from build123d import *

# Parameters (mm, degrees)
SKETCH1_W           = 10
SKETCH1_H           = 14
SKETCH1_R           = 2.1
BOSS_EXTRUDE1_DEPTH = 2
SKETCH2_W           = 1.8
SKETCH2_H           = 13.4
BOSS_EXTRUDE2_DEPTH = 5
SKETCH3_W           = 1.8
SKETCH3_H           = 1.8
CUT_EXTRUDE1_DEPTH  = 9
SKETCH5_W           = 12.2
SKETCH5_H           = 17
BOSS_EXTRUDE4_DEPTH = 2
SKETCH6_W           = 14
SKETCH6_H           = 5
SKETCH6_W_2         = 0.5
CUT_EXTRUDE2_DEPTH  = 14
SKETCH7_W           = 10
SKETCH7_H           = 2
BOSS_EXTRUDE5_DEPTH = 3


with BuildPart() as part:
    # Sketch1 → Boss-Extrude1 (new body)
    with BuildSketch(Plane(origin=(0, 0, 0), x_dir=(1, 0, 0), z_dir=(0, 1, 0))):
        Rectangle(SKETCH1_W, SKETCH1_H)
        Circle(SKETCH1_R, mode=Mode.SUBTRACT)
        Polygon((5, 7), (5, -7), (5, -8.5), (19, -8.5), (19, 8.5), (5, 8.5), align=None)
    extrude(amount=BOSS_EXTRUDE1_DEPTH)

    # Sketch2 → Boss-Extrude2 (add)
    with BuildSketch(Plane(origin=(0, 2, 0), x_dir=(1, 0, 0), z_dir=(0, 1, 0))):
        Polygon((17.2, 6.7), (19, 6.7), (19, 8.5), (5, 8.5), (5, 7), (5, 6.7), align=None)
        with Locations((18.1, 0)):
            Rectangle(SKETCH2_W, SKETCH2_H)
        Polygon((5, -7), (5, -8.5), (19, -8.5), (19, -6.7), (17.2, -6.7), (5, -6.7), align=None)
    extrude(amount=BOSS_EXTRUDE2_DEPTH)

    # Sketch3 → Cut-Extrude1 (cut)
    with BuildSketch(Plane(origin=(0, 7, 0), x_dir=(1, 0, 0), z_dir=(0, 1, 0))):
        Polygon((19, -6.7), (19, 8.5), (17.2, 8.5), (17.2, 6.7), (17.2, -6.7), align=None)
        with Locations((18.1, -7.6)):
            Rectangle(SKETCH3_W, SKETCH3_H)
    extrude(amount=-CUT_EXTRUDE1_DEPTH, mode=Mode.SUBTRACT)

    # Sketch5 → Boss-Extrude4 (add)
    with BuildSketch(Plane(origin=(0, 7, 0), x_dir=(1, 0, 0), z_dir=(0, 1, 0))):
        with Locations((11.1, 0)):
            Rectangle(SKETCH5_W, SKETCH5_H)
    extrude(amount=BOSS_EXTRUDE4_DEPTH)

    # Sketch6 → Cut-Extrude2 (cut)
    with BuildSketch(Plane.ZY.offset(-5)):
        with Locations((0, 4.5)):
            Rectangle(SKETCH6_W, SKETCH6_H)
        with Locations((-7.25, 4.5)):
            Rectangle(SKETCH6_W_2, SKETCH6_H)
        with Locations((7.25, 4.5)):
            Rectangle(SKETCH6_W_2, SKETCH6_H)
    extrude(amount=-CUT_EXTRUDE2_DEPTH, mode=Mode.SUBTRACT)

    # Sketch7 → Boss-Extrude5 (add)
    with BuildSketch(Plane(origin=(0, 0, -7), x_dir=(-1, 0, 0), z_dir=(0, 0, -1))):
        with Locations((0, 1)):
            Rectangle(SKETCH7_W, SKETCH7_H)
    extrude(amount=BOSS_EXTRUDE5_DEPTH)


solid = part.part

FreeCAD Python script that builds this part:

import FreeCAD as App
import Part
import Sketcher

V = App.Vector


def add_polygon(sketch, points):
    """Adds a closed chain of lines whose ends are joined by coincident constraints."""
    first, n = sketch.GeometryCount, len(points)
    for a, b in zip(points, points[1:] + points[:1]):
        sketch.addGeometry(Part.LineSegment(App.Vector(*a, 0), App.Vector(*b, 0)), False)
    for i in range(n):
        sketch.addConstraint(Sketcher.Constraint("Coincident", first + i, 2, first + (i + 1) % n, 1))

doc = App.newDocument("Part")
body = doc.addObject("PartDesign::Body", "Body")

# Sketch on XZ plane
sketch1 = doc.addObject("Sketcher::SketchObject", "Sketch")
body.addObject(sketch1)
sketch1.AttachmentSupport = (doc.XZ_Plane, [""])
sketch1.MapMode = "FlatFace"
add_polygon(sketch1, [(-5, -7), (-5, 7), (5, 7), (5, 8.5), (19, 8.5), (19, -8.5), (5, -8.5), (5, -7)])  # lines 0-7
sketch1.addGeometry(Part.Circle(V(0, 0, 0), V(0, 0, 1), 2.1), False)  # 8
sketch1.addConstraint([
    Sketcher.Constraint("Vertical", 0),
    Sketcher.Constraint("Horizontal", 1),
    Sketcher.Constraint("Vertical", 2),
    Sketcher.Constraint("Horizontal", 3),
    Sketcher.Constraint("Vertical", 4),
    Sketcher.Constraint("Horizontal", 5),
    Sketcher.Constraint("Vertical", 6),
    Sketcher.Constraint("Horizontal", 7),
    Sketcher.Constraint("Coincident", 8, 3, -1, 1),
    Sketcher.Constraint("Symmetric", 0, 2, 6, 2, -1, 1),
    Sketcher.Constraint("Symmetric", 2, 2, 5, 2, -1),
    Sketcher.Constraint("Equal", 5, 0),
    Sketcher.Constraint("Diameter", 8, 4.2),
    Sketcher.Constraint("DistanceX", 1, 1, 1, 2, 10.0),
    Sketcher.Constraint("DistanceX", 3, 1, 3, 2, 14.0),
    Sketcher.Constraint("DistanceY", 4, 2, 4, 1, 17.0),
])
pad1 = doc.addObject("PartDesign::Pad", "Pad")
body.addObject(pad1)
pad1.Profile = sketch1
pad1.Length = 2
pad1.Reversed = True

# Sketch on XZ plane
sketch2 = doc.addObject("Sketcher::SketchObject", "Sketch001")
body.addObject(sketch2)
sketch2.AttachmentSupport = (doc.XZ_Plane, [""])
sketch2.MapMode = "FlatFace"
sketch2.AttachmentOffset = App.Placement(V(0, 0, -2), App.Rotation())
add_polygon(sketch2, [(19, -8.5), (5, -8.5), (5, -6.7), (17.2, -6.7), (17.2, 6.7), (5, 6.7), (5, 8.5), (19, 8.5)])  # lines 0-7
sketch2.addConstraint([
    Sketcher.Constraint("Horizontal", 0),
    Sketcher.Constraint("Vertical", 1),
    Sketcher.Constraint("Horizontal", 2),
    Sketcher.Constraint("Vertical", 3),
    Sketcher.Constraint("Horizontal", 4),
    Sketcher.Constraint("Vertical", 5),
    Sketcher.Constraint("Horizontal", 6),
    Sketcher.Constraint("Vertical", 7),
    Sketcher.Constraint("Symmetric", 1, 2, 4, 2, -1),
    Sketcher.Constraint("Equal", 1, 5),
    Sketcher.Constraint("DistanceX", 0, 2, 0, 1, 14.0),
    Sketcher.Constraint("DistanceY", 7, 2, 7, 1, 17.0),
    Sketcher.Constraint("DistanceX", 2, 1, 2, 2, 12.2),
    Sketcher.Constraint("DistanceY", 1, 1, 1, 2, 1.8),
    Sketcher.Constraint("DistanceX", -1, 1, 0, 2, 5.0),
])
pad2 = doc.addObject("PartDesign::Pad", "Pad001")
body.addObject(pad2)
pad2.Profile = sketch2
pad2.Length = 5
pad2.Reversed = True

# Sketch on XZ plane
sketch3 = doc.addObject("Sketcher::SketchObject", "Sketch002")
body.addObject(sketch3)
sketch3.AttachmentSupport = (doc.XZ_Plane, [""])
sketch3.MapMode = "FlatFace"
sketch3.AttachmentOffset = App.Placement(V(0, 0, -7), App.Rotation())
add_polygon(sketch3, [(19, -8.5), (17.2, -8.5), (17.2, 8.5), (19, 8.5)])  # lines 0-3
sketch3.addConstraint([
    Sketcher.Constraint("Horizontal", 0),
    Sketcher.Constraint("Vertical", 1),
    Sketcher.Constraint("Horizontal", 2),
    Sketcher.Constraint("Vertical", 3),
    Sketcher.Constraint("DistanceY", 1, 1, 1, 2, 17.0),
    Sketcher.Constraint("DistanceX", 0, 2, 0, 1, 1.8),
    Sketcher.Constraint("DistanceX", -1, 1, 2, 2, 19.0),
    Sketcher.Constraint("DistanceY", 0, 2, -1, 1, 8.5),
])
pocket1 = doc.addObject("PartDesign::Pocket", "Pocket")
body.addObject(pocket1)
pocket1.Profile = sketch3
pocket1.Length = 9
pocket1.Reversed = True

# Sketch on XZ plane
sketch4 = doc.addObject("Sketcher::SketchObject", "Sketch003")
body.addObject(sketch4)
sketch4.AttachmentSupport = (doc.XZ_Plane, [""])
sketch4.MapMode = "FlatFace"
sketch4.AttachmentOffset = App.Placement(V(0, 0, -7), App.Rotation())
add_polygon(sketch4, [(5, -8), (5, 8), (17, 8), (17, -8)])  # lines 0-3
sketch4.addConstraint([
    Sketcher.Constraint("Vertical", 0),
    Sketcher.Constraint("Horizontal", 1),
    Sketcher.Constraint("Vertical", 2),
    Sketcher.Constraint("Horizontal", 3),
    Sketcher.Constraint("DistanceY", 0, 1, 0, 2, 17.0),
    Sketcher.Constraint("DistanceX", 1, 1, 1, 2, 12.2),
    Sketcher.Constraint("DistanceX", -1, 1, 0, 2, 5.0),
    Sketcher.Constraint("DistanceY", -1, 1, 0, 2, 8.5),
])
pad3 = doc.addObject("PartDesign::Pad", "Pad002")
body.addObject(pad3)
pad3.Profile = sketch4
pad3.Length = 2
pad3.Reversed = True

# Sketch on YZ plane
sketch5 = doc.addObject("Sketcher::SketchObject", "Sketch004")
body.addObject(sketch5)
sketch5.AttachmentSupport = (doc.YZ_Plane, [""])
sketch5.MapMode = "FlatFace"
sketch5.AttachmentOffset = App.Placement(V(0, 0, 5), App.Rotation())
add_polygon(sketch5, [(7, -8), (2, -8), (2, 8), (7, 8)])  # lines 0-3
sketch5.addConstraint([
    Sketcher.Constraint("Horizontal", 0),
    Sketcher.Constraint("Vertical", 1),
    Sketcher.Constraint("Horizontal", 2),
    Sketcher.Constraint("Vertical", 3),
    Sketcher.Constraint("DistanceX", 0, 2, 0, 1, 5.0),
    Sketcher.Constraint("DistanceY", 1, 1, 1, 2, 15.0),
    Sketcher.Constraint("DistanceX", -1, 1, 0, 2, 2.0),
    Sketcher.Constraint("DistanceY", 0, 2, -1, 1, 7.5),
])
pocket2 = doc.addObject("PartDesign::Pocket", "Pocket001")
body.addObject(pocket2)
pocket2.Profile = sketch5
pocket2.Length = 14
pocket2.Reversed = True

# Sketch on XY plane
sketch6 = doc.addObject("Sketcher::SketchObject", "Sketch005")
body.addObject(sketch6)
sketch6.AttachmentSupport = (doc.XY_Plane, [""])
sketch6.MapMode = "FlatFace"
sketch6.AttachmentOffset = App.Placement(V(0, 0, -7), App.Rotation())
add_polygon(sketch6, [(5, 2), (5, 0), (-5, 0), (-5, 2)])  # lines 0-3
sketch6.addConstraint([
    Sketcher.Constraint("Vertical", 0),
    Sketcher.Constraint("Horizontal", 1),
    Sketcher.Constraint("Vertical", 2),
    Sketcher.Constraint("Horizontal", 3),
    Sketcher.Constraint("Symmetric", 0, 2, 1, 2, -1, 1),
    Sketcher.Constraint("DistanceX", 1, 2, 1, 1, 10.0),
    Sketcher.Constraint("DistanceY", 0, 2, 0, 1, 2.0),
])
pad4 = doc.addObject("PartDesign::Pad", "Pad003")
body.addObject(pad4)
pad4.Profile = sketch6
pad4.Length = 3
pad4.Reversed = True

doc.recompute()
